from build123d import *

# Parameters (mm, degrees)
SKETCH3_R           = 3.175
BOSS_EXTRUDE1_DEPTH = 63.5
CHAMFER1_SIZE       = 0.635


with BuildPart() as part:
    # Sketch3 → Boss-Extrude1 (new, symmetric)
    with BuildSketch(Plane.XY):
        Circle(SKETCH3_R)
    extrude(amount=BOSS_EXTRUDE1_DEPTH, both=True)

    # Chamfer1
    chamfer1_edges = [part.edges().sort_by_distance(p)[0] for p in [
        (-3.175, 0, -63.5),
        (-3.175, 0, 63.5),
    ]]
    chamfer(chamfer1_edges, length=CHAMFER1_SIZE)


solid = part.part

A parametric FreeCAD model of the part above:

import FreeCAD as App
import Part
import Sketcher
Q = App.Units.Quantity


def edges_at(feature, points):
    """Names of the edges that pass closest to the given points."""
    edges = feature.Shape.Edges
    near = lambda p: min(range(len(edges)), key=lambda i: edges[i].distToShape(Part.Vertex(*p))[0])
    return sorted({f"Edge{near(p) + 1}" for p in points})

doc = App.newDocument("Part")
params = doc.addObject("Spreadsheet::Sheet", "Params")
for row, (alias, value) in enumerate([
    ("sketch1_diameter", "0.25 in"),
    ("pad1_length", "5 in"),
    ("chamfer_size", "0.025 in"),
], start=1):
    params.set(f"A{row}", alias)
    params.set(f"B{row}", "=" + value)
    params.setAlias(f"B{row}", alias)

body = doc.addObject("PartDesign::Body", "Body")

# Sketch on XY plane
sketch1 = doc.addObject("Sketcher::SketchObject", "Sketch")
body.addObject(sketch1)
sketch1.AttachmentSupport = (doc.XY_Plane, [""])
sketch1.MapMode = "FlatFace"
sketch1.addGeometry(Part.Circle(App.Vector(0, 0, 0), App.Vector(0, 0, 1), 3.2), False)
sketch1.addConstraint(Sketcher.Constraint("Coincident", 0, 3, -1, 1))
sketch1.addConstraint(Sketcher.Constraint("Diameter", 0, Q("0.25 in")))
sketch1.setExpression("Constraints[1]", "Params.sketch1_diameter")
pad1 = doc.addObject("PartDesign::Pad", "Pad")
body.addObject(pad1)
pad1.Profile = sketch1
pad1.setExpression("Length", "Params.pad1_length")
pad1.Midplane = True
doc.recompute()

chamfer = doc.addObject("PartDesign::Chamfer", "Chamfer")
body.addObject(chamfer)
chamfer.Base = (pad1, edges_at(pad1, [(-3.175, 0, -63.5), (-3.175, 0, 63.5)]))
chamfer.setExpression("Size", "Params.chamfer_size")

doc.recompute()
